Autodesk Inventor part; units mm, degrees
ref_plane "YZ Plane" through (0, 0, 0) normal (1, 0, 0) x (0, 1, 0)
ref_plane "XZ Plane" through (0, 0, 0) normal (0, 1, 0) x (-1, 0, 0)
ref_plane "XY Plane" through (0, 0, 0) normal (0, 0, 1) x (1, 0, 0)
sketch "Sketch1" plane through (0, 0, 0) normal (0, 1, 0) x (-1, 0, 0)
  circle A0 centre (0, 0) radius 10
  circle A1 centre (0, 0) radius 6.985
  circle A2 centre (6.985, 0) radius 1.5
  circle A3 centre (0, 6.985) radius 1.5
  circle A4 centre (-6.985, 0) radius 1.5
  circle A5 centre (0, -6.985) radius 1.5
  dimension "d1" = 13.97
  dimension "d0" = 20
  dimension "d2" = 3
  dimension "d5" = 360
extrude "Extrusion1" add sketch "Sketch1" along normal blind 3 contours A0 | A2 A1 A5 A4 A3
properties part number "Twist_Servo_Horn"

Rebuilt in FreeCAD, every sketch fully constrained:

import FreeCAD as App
import Part
import Sketcher

V = App.Vector

doc = App.newDocument("Part")
params = doc.addObject("Spreadsheet::Sheet", "Params")
for row, (alias, value) in enumerate([
    ("sketch1_diameter", "20 mm"),
    ("sketch1_diameter2", "3 mm"),
    ("pad1_length", "3 mm"),
], start=1):
    params.set(f"A{row}", alias)
    params.set(f"B{row}", "=" + value)
    params.setAlias(f"B{row}", alias)

body = doc.addObject("PartDesign::Body", "Body")

# Sketch on XZ plane
sketch1 = body.newObject("Sketcher::SketchObject", "Sketch")
sketch1.AttachmentSupport = (doc.getObject("XZ_Plane"), [""])
sketch1.MapMode = "FlatFace"
sketch1.addGeometry([
    Part.Circle(V(0, 0, 0), V(0, 0, 1), 10),  # 0
    Part.Circle(V(0, 7, 0), V(0, 0, 1), 1.5),  # 1
    Part.Circle(V(7, 0, 0), V(0, 0, 1), 1.5),  # 2
    Part.Circle(V(0, -7, 0), V(0, 0, 1), 1.5),  # 3
    Part.Circle(V(-7, 0, 0), V(0, 0, 1), 1.5),  # 4
], False)
sketch1.addConstraint([
    Sketcher.Constraint("Coincident", 0, 3, -1, 1),
    Sketcher.Constraint("Equal", 1, 2),
    Sketcher.Constraint("Equal", 2, 3),
    Sketcher.Constraint("Equal", 3, 4),
    Sketcher.Constraint("Symmetric", 1, 3, 3, 3, -1, 1),
    Sketcher.Constraint("Symmetric", 2, 3, 4, 3, -1, 1),
    Sketcher.Constraint("PointOnObject", 1, 3, -2),
    Sketcher.Constraint("PointOnObject", 2, 3, -1),
    Sketcher.Constraint("Diameter", 0, 20.0),
    Sketcher.Constraint("Diameter", 1, 3.0),
    Sketcher.Constraint("DistanceY", 3, 3, 1, 3, 13.97),
    Sketcher.Constraint("DistanceX", 4, 3, 2, 3, 13.97),
])
sketch1.setExpression("Constraints[8]", "Params.sketch1_diameter")
sketch1.setExpression("Constraints[9]", "Params.sketch1_diameter2")
pad1 = body.newObject("PartDesign::Pad", "Pad")
pad1.Profile = sketch1
pad1.setExpression("Length", "Params.pad1_length")
pad1.Reversed = True

doc.recompute()
